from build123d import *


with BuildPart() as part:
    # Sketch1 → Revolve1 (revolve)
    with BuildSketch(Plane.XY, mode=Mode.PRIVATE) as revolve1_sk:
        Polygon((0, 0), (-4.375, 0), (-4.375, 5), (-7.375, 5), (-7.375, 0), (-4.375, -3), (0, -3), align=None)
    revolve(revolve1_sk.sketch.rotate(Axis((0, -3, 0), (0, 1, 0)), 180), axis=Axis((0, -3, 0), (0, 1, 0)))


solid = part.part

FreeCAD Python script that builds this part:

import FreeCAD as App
import Part
import Sketcher

V = App.Vector


def add_polygon(sketch, points):
    """Adds a closed chain of lines whose ends are joined by coincident constraints."""
    first, n = sketch.GeometryCount, len(points)
    for a, b in zip(points, points[1:] + points[:1]):
        sketch.addGeometry(Part.LineSegment(App.Vector(*a, 0), App.Vector(*b, 0)), False)
    for i in range(n):
        sketch.addConstraint(Sketcher.Constraint("Coincident", first + i, 2, first + (i + 1) % n, 1))

doc = App.newDocument("Part")
body = doc.addObject("PartDesign::Body", "Body")

# Sketch on XY plane
sketch1 = body.newObject("Sketcher::SketchObject", "Sketch")
sketch1.AttachmentSupport = (doc.getObject("XY_Plane"), [""])
sketch1.MapMode = "FlatFace"
add_polygon(sketch1, [(0, 0), (-4.4, 0), (-4.4, 5), (-7.4, 5), (-7.4, 0), (-4.4, -3), (0, -3)])  # lines 0-6
sketch1.addConstraint(Sketcher.Constraint("Horizontal", 0))
sketch1.addConstraint(Sketcher.Constraint("Vertical", 1))
sketch1.addConstraint(Sketcher.Constraint("Horizontal", 2))
sketch1.addConstraint(Sketcher.Constraint("Vertical", 3))
sketch1.addConstraint(Sketcher.Constraint("Horizontal", 5))
sketch1.addConstraint(Sketcher.Constraint("Vertical", 6))
sketch1.addConstraint(Sketcher.Constraint("Coincident", 6, 2, -1, 1))
sketch1.addConstraint(Sketcher.Constraint("PointOnObject", 3, 2, -1))
sketch1.addConstraint(Sketcher.Constraint("Vertical", 1, 2, 4, 2))
sketch1.addConstraint(Sketcher.Constraint("Equal", 2, 6))
sketch1.addConstraint(Sketcher.Constraint("DistanceX", 2, 2, 2, 1, 3.0))
sketch1.addConstraint(Sketcher.Constraint("DistanceY", 1, 1, 1, 2, 5.0))
sketch1.addConstraint(Sketcher.Constraint("DistanceX", 0, 2, 0, 1, 4.375))
revolution = body.newObject("PartDesign::Revolution", "Revolution")
revolution.Profile = sketch1
revolution.ReferenceAxis = (sketch1, ["V_Axis"])
revolution.Angle = 360

doc.recompute()
